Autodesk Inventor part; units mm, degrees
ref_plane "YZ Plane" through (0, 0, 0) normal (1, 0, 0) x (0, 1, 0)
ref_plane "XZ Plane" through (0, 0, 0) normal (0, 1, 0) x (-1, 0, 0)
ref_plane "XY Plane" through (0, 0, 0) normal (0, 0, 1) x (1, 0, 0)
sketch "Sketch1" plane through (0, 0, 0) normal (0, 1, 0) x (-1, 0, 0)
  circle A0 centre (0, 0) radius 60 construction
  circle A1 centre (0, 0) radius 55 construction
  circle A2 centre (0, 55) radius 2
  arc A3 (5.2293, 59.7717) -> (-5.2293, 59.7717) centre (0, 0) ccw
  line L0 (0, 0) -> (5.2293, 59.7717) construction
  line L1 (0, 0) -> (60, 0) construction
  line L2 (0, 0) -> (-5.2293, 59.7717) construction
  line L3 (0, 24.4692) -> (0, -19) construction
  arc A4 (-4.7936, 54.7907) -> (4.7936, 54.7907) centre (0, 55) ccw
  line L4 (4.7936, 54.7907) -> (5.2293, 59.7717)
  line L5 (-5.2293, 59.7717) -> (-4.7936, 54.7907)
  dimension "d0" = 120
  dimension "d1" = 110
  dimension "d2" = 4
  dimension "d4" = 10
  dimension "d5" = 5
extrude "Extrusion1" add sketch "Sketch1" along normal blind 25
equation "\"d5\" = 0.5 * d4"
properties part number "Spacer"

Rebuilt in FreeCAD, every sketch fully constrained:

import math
import FreeCAD as App
import Part
import Sketcher
from FreeCAD import Vector
Q = App.Units.Quantity

doc = App.newDocument("Part")
body = doc.addObject("PartDesign::Body", "Body")

sketch1 = body.newObject("Sketcher::SketchObject", "Sketch")
sketch1.AttachmentSupport = (doc.getObject("XZ_Plane"), [""])
sketch1.MapMode = "FlatFace"
sketch1.addGeometry(Part.LineSegment(Vector(-4.7936, 54.7907, 0), Vector(-5.2293, 59.7717, 0)), False)
sketch1.addGeometry(Part.ArcOfCircle(Part.Circle(Vector(0, 0, 0), Vector(0, 0, 1), 60.000014), math.radians(85.000044), math.radians(94.999956)), False)
sketch1.addGeometry(Part.LineSegment(Vector(5.2293, 59.7717, 0), Vector(4.7936, 54.7907, 0)), False)
sketch1.addGeometry(Part.ArcOfCircle(Part.Circle(Vector(0, 55, 0), Vector(0, 0, 1), 4.798167), math.radians(-177.499918), math.radians(-2.500082)), False)
sketch1.addGeometry(Part.Circle(Vector(0, 55, 0), Vector(0, 0, 1), 2), False)
sketch1.addConstraint(Sketcher.Constraint("Coincident", 0, 2, 1, 2))
sketch1.addConstraint(Sketcher.Constraint("Coincident", 1, 1, 2, 1))
sketch1.addConstraint(Sketcher.Constraint("Coincident", 2, 2, 3, 2))
sketch1.addConstraint(Sketcher.Constraint("Coincident", 3, 1, 0, 1))
sketch1.addConstraint(Sketcher.Constraint("Coincident", 1, 3, -1, 1))
sketch1.addConstraint(Sketcher.Constraint("Coincident", 4, 3, 3, 3))
sketch1.addConstraint(Sketcher.Constraint("Symmetric", 2, 2, 3, 1, -2))
sketch1.addConstraint(Sketcher.Constraint("Horizontal", 0, 2, 1, 1))
sketch1.addConstraint(Sketcher.Constraint("Diameter", 4, Q("4 mm")))
sketch1.addConstraint(Sketcher.Constraint("Radius", 1, Q("60 mm")))
sketch1.addConstraint(Sketcher.Constraint("Distance", 0, Q("5 mm")))
sketch1.addConstraint(Sketcher.Constraint("Angle", 0, Q("94.999 deg")))
sketch1.addConstraint(Sketcher.Constraint("DistanceY", -1, 1, 3, 3, Q("55 mm")))
sketch1.addConstraint(Sketcher.Constraint("Radius", 3, Q("4.7982 mm")))
pad1 = body.newObject("PartDesign::Pad", "Pad")
pad1.Profile = sketch1
pad1.Length = 25
pad1.Reversed = True

doc.recompute()
